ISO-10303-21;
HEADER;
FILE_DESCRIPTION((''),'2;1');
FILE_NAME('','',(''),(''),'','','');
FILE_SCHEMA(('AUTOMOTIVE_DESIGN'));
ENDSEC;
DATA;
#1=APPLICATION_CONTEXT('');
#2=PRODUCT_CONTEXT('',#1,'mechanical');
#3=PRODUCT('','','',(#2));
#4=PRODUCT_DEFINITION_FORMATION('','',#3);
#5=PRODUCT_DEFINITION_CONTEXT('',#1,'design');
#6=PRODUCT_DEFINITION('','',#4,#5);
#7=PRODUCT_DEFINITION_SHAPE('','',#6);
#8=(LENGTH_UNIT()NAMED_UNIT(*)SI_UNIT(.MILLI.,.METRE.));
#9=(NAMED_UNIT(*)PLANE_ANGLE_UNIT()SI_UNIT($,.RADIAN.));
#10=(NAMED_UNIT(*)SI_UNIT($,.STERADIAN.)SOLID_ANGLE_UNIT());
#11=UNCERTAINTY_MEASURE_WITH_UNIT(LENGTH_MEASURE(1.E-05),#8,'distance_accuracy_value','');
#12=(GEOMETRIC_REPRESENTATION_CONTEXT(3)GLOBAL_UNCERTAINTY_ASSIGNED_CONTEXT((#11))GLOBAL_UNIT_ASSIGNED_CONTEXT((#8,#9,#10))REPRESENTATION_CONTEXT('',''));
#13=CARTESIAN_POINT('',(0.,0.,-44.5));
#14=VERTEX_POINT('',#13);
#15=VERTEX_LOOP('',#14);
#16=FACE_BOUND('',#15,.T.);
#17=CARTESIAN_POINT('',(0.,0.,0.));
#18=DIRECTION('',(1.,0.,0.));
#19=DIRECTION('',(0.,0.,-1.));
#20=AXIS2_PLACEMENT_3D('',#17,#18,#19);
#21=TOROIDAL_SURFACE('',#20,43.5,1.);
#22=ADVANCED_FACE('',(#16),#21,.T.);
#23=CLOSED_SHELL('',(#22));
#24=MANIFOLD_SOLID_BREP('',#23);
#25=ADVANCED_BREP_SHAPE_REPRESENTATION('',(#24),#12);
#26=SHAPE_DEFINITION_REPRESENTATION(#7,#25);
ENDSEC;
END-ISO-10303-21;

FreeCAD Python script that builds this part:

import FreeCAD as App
import Part
import Sketcher
from FreeCAD import Vector

doc = App.newDocument("Part")
body = doc.addObject("PartDesign::Body", "Body")

# Sketch on XY plane
sketch1 = body.newObject("Sketcher::SketchObject", "Sketch")
sketch1.AttachmentSupport = (doc.getObject("XY_Plane"), [""])
sketch1.MapMode = "FlatFace"
sketch1.addGeometry(Part.Circle(Vector(0, 43.5, 0), Vector(0, 0, 1), 1), False)
sketch1.addConstraint(Sketcher.Constraint("PointOnObject", 0, 3, -2))
sketch1.addConstraint(Sketcher.Constraint("Diameter", 0, 2.0))
sketch1.addConstraint(Sketcher.Constraint("DistanceY", -1, 1, 0, 3, 43.5))
revolution = body.newObject("PartDesign::Revolution", "Revolution")
revolution.Profile = sketch1
revolution.ReferenceAxis = (sketch1, ["H_Axis"])
revolution.Angle = 360

doc.recompute()
